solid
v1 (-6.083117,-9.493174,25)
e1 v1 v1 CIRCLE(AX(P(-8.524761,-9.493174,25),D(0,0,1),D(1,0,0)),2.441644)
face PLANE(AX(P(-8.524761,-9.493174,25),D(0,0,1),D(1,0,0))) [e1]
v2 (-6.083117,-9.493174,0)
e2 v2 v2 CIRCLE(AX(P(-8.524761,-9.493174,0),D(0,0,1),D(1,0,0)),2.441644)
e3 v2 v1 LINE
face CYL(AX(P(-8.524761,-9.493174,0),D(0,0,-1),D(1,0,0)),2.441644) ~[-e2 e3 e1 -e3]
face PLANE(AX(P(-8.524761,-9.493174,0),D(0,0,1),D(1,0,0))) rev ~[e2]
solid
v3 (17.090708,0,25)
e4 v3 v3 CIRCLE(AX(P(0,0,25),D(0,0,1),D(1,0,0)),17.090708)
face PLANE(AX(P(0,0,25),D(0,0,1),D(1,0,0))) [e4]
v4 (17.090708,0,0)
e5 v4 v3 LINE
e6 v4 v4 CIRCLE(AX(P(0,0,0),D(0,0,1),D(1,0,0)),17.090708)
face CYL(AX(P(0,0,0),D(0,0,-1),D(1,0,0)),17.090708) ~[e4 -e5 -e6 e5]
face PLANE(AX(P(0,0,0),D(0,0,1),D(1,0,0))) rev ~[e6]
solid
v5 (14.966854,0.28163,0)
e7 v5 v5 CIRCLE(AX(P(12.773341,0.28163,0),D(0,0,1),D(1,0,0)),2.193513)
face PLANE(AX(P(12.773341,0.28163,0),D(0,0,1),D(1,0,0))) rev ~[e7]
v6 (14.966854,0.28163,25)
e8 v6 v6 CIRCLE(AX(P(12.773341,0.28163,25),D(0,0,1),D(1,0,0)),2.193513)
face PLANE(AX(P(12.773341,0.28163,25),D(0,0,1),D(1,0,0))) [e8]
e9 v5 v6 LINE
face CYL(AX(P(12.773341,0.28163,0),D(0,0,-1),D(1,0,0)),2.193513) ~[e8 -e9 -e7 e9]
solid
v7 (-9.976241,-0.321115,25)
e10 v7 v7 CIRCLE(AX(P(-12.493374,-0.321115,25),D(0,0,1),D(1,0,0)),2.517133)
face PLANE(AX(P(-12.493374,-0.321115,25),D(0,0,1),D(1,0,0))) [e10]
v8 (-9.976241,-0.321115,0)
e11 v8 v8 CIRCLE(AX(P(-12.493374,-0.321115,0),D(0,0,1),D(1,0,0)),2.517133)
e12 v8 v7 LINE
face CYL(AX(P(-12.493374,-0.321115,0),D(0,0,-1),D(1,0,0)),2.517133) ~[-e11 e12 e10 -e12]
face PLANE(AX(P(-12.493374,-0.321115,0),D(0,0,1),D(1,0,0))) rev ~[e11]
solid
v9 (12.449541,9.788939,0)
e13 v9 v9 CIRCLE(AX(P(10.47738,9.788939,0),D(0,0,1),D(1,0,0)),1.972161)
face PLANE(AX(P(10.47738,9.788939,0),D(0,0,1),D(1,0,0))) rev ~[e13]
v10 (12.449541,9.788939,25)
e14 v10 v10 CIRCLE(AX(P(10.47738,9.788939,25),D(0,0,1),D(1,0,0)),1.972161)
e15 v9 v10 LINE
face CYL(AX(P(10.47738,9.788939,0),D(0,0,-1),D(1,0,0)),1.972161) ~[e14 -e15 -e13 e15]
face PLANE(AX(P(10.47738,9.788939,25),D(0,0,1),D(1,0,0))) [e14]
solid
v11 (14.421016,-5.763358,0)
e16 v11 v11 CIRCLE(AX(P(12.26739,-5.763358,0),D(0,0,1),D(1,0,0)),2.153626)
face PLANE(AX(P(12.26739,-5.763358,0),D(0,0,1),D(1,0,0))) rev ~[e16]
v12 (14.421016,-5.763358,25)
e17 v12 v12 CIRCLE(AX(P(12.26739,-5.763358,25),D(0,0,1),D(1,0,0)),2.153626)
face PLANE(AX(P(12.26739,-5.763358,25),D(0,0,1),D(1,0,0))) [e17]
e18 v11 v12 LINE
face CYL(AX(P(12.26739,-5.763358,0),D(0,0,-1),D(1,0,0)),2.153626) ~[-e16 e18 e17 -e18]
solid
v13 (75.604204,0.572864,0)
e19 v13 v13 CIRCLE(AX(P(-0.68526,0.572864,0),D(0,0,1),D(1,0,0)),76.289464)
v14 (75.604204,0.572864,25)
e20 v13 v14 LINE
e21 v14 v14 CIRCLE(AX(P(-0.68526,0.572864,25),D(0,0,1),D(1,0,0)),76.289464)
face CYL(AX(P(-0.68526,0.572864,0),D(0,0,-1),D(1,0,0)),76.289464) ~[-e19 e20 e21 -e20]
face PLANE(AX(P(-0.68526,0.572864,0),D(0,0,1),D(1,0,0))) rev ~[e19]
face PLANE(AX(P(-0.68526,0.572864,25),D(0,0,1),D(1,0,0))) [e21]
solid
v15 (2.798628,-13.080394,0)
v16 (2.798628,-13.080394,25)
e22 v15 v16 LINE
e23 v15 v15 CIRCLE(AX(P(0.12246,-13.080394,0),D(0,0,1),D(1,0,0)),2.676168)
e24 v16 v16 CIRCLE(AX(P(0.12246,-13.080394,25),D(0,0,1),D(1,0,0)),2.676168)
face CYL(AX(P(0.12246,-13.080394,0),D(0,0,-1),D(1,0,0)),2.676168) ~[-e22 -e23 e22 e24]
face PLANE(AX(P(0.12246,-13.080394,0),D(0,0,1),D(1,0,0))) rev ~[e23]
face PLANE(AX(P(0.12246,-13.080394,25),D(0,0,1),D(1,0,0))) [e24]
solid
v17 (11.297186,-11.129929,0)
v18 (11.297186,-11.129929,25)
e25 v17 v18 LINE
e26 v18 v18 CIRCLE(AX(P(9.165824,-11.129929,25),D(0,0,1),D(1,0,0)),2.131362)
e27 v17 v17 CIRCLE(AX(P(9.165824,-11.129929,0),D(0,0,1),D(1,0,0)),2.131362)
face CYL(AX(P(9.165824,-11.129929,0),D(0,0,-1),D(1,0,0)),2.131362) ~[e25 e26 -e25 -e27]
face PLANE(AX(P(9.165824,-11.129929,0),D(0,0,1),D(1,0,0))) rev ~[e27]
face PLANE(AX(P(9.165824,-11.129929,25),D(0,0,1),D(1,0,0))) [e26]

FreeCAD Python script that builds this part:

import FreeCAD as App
import Part
import Sketcher

doc = App.newDocument("Part")
body = doc.addObject("PartDesign::Body", "Body")
body.AllowCompound = True

# Sketch on XY plane
sketch1 = body.newObject("Sketcher::SketchObject", "Sketch")
sketch1.AttachmentSupport = (doc.getObject("XY_Plane"), [""])
sketch1.MapMode = "FlatFace"
sketch1.addGeometry(Part.Circle(App.Vector(10.5, 9.8, 0), App.Vector(0, 0, 1), 2), False)
sketch1.addGeometry(Part.Circle(App.Vector(-12.5, -0.3, 0), App.Vector(0, 0, 1), 2.5), False)
sketch1.addGeometry(Part.Circle(App.Vector(-8.5, -9.5, 0), App.Vector(0, 0, 1), 2.4), False)
sketch1.addGeometry(Part.Circle(App.Vector(0.1, -13.1, 0), App.Vector(0, 0, 1), 2.7), False)
sketch1.addGeometry(Part.Circle(App.Vector(9.2, -11.1, 0), App.Vector(0, 0, 1), 2.1), False)
sketch1.addGeometry(Part.Circle(App.Vector(12.3, -5.8, 0), App.Vector(0, 0, 1), 2.2), False)
sketch1.addGeometry(Part.Circle(App.Vector(12.8, 0.3, 0), App.Vector(0, 0, 1), 2.2), False)
sketch1.addConstraint(Sketcher.Constraint("Diameter", 2, 4.883288))
sketch1.addConstraint(Sketcher.Constraint("Diameter", 0, 3.944322))
sketch1.addConstraint(Sketcher.Constraint("Diameter", 1, 5.034266))
sketch1.addConstraint(Sketcher.Constraint("Diameter", 3, 5.352336))
sketch1.addConstraint(Sketcher.Constraint("Diameter", 4, 4.262724))
sketch1.addConstraint(Sketcher.Constraint("Diameter", 5, 4.307252))
sketch1.addConstraint(Sketcher.Constraint("Diameter", 6, 4.387026))
sketch1.addConstraint(Sketcher.Constraint("DistanceX", 1, 3, 4, 3, 21.659198))
sketch1.addConstraint(Sketcher.Constraint("DistanceX", 2, 3, 6, 3, 21.298102))
sketch1.addConstraint(Sketcher.Constraint("DistanceX", -1, 1, 0, 3, 10.47738))
sketch1.addConstraint(Sketcher.Constraint("DistanceY", -1, 1, 0, 3, 9.788939))
sketch1.addConstraint(Sketcher.Constraint("DistanceX", 2, 3, -1, 1, 8.524761))
sketch1.addConstraint(Sketcher.Constraint("DistanceX", -1, 1, 3, 3, 0.12246))
sketch1.addConstraint(Sketcher.Constraint("DistanceY", 4, 3, -1, 1, 11.129929))
sketch1.addConstraint(Sketcher.Constraint("DistanceX", -1, 1, 5, 3, 12.26739))
sketch1.addConstraint(Sketcher.Constraint("DistanceY", 5, 3, -1, 1, 5.763358))
sketch1.addConstraint(Sketcher.Constraint("DistanceY", -1, 1, 6, 3, 0.28163))
sketch1.addConstraint(Sketcher.Constraint("DistanceY", 2, 3, 1, 3, 9.172059))
sketch1.addConstraint(Sketcher.Constraint("DistanceY", 3, 3, 2, 3, 3.58722))
sketch1.addConstraint(Sketcher.Constraint("DistanceX", 1, 3, -1, 1, 12.493374))
sketch1.addConstraint(Sketcher.Constraint("DistanceY", 1, 3, -1, 1, 0.321115))
pad1 = body.newObject("PartDesign::Pad", "Pad")
pad1.Profile = sketch1
pad1.Length = 25
body2 = doc.addObject("PartDesign::Body", "Body001")

# Sketch on XY plane
sketch2 = body2.newObject("Sketcher::SketchObject", "Sketch001")
sketch2.AttachmentSupport = (doc.getObject("XY_Plane001"), [""])
sketch2.MapMode = "FlatFace"
sketch2.addGeometry(Part.Circle(App.Vector(0, 0, 0), App.Vector(0, 0, 1), 17), False)
sketch2.addConstraint(Sketcher.Constraint("Coincident", 0, 3, -1, 1))
sketch2.addConstraint(Sketcher.Constraint("Diameter", 0, 34.181416))
pad2 = body2.newObject("PartDesign::Pad", "Pad001")
pad2.Profile = sketch2
pad2.Length = 25

# Sketch on XY plane
sketch3 = body2.newObject("Sketcher::SketchObject", "Sketch002")
sketch3.AttachmentSupport = (doc.getObject("XY_Plane001"), [""])
sketch3.MapMode = "FlatFace"
sketch3.addGeometry(Part.Circle(App.Vector(-10, 9.3, 0), App.Vector(0, 0, 1), 2.3), False)
sketch3.addConstraint(Sketcher.Constraint("Diameter", 0, 4.661798))
sketch3.addConstraint(Sketcher.Constraint("DistanceY", -1, 1, 0, 3, 9.261301))
sketch3.addConstraint(Sketcher.Constraint("DistanceX", 0, 3, -1, 1, 10.025119))
pad3 = body2.newObject("PartDesign::Pad", "Pad002")
pad3.Profile = sketch3
pad3.Length = 25

# Sketch on XY plane
sketch4 = body2.newObject("Sketcher::SketchObject", "Sketch003")
sketch4.AttachmentSupport = (doc.getObject("XY_Plane001"), [""])
sketch4.MapMode = "FlatFace"
sketch4.addGeometry(Part.Circle(App.Vector(0.3, 11.8, 0), App.Vector(0, 0, 1), 2.4), False)
sketch4.addConstraint(Sketcher.Constraint("Diameter", 0, 4.813162))
sketch4.addConstraint(Sketcher.Constraint("DistanceX", -1, 1, 0, 3, 0.306891))
sketch4.addConstraint(Sketcher.Constraint("DistanceY", -1, 1, 0, 3, 11.839189))
pad4 = body2.newObject("PartDesign::Pad", "Pad003")
pad4.Profile = sketch4
pad4.Length = 25
body3 = doc.addObject("PartDesign::Body", "Body002")

# Sketch on XY plane
sketch5 = body3.newObject("Sketcher::SketchObject", "Sketch004")
sketch5.AttachmentSupport = (doc.getObject("XY_Plane002"), [""])
sketch5.MapMode = "FlatFace"
sketch5.addGeometry(Part.Circle(App.Vector(-1, 1, 0), App.Vector(0, 0, 1), 76), False)
sketch5.addConstraint(Sketcher.Constraint("Diameter", 0, 152.578928))
sketch5.addConstraint(Sketcher.Constraint("DistanceX", 0, 3, -1, 1, 0.68526))
sketch5.addConstraint(Sketcher.Constraint("DistanceY", -1, 1, 0, 3, 0.572864))
pad5 = body3.newObject("PartDesign::Pad", "Pad004")
pad5.Profile = sketch5
pad5.Length = 25

doc.recompute()
